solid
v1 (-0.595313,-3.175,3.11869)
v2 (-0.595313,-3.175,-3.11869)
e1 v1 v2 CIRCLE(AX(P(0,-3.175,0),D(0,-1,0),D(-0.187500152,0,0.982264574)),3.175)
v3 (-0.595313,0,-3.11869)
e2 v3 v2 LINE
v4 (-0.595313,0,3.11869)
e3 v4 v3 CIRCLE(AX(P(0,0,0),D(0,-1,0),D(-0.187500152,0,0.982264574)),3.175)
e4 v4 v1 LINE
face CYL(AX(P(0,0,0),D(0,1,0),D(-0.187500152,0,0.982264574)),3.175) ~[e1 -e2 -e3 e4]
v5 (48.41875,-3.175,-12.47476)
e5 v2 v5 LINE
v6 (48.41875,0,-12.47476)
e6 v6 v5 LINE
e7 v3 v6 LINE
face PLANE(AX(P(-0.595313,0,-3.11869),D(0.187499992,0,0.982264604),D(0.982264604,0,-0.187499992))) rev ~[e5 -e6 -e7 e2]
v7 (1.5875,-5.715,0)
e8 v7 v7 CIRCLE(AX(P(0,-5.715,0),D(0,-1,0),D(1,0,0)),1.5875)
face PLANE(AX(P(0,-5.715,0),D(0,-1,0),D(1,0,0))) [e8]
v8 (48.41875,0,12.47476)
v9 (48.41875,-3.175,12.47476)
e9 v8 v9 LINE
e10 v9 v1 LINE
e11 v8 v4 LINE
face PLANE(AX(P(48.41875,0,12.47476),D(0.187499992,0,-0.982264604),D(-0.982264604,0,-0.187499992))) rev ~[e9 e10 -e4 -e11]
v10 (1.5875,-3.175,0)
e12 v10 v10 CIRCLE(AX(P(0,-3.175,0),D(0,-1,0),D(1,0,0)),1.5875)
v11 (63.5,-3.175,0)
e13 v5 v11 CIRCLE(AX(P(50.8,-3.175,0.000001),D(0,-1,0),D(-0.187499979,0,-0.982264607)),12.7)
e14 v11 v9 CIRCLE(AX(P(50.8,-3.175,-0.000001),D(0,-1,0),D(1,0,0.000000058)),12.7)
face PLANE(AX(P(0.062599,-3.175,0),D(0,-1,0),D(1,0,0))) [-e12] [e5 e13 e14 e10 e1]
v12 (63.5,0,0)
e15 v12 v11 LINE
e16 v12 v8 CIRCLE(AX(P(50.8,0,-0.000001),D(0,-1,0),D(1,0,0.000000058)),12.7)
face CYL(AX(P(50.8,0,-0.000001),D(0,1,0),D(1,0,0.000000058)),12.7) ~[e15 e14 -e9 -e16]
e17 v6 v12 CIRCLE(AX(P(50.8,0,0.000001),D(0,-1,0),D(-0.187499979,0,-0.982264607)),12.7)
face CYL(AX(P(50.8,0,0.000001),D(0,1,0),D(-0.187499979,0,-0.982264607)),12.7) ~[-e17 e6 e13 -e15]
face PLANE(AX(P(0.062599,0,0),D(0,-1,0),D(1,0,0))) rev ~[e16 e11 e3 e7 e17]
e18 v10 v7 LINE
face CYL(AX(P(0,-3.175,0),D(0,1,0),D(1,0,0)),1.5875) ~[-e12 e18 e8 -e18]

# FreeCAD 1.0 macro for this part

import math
import FreeCAD as App
import Part
import Sketcher
from FreeCAD import Vector
Q = App.Units.Quantity

doc = App.newDocument("Part")
body = doc.addObject("PartDesign::Body", "Body")

sketch1 = body.newObject("Sketcher::SketchObject", "Sketch")
sketch1.AttachmentSupport = (doc.getObject("XZ_Plane"), [""])
sketch1.MapMode = "FlatFace"
sketch1.addGeometry([
    Part.ArcOfCircle(Part.Circle(Vector(0, 0, 0), Vector(0, 0, 1), 3.2), math.radians(101), math.radians(259)),
    Part.LineSegment(Vector(-0.6, -3.1, 0), Vector(48.4, -12.5, 0)),
    Part.ArcOfCircle(Part.Circle(Vector(50.8, 0, 0), Vector(0, 0, 1), 12.7), math.radians(-101), math.radians(0)),
    Part.ArcOfCircle(Part.Circle(Vector(50.8, 0, 0), Vector(0, 0, 1), 12.7), math.radians(0), math.radians(101)),
    Part.LineSegment(Vector(48.4, 12.5, 0), Vector(-0.6, 3.1, 0)),
], False)
sketch1.addConstraint([
    Sketcher.Constraint("Tangent", 0, 2, 1, 1),
    Sketcher.Constraint("Tangent", 1, 2, 2, 1),
    Sketcher.Constraint("Tangent", 2, 2, 3, 1),
    Sketcher.Constraint("Tangent", 3, 2, 4, 1),
    Sketcher.Constraint("Tangent", 4, 2, 0, 1),
    Sketcher.Constraint("Coincident", 0, 3, -1, 1),
    Sketcher.Constraint("Equal", 2, 3),
    Sketcher.Constraint("PointOnObject", 2, 3, -1),
    Sketcher.Constraint("PointOnObject", 2, 2, -1),
    Sketcher.Constraint("Radius", 2, Q("0.5 in")),
    Sketcher.Constraint("DistanceX", -1, 1, 2, 3, Q("2 in")),
    Sketcher.Constraint("Radius", 0, Q("0.125 in")),
])
pad1 = body.newObject("PartDesign::Pad", "Pad")
pad1.Profile = sketch1
pad1.Length = Q("0.125 in")

sketch2 = body.newObject("Sketcher::SketchObject", "Sketch001")
sketch2.AttachmentSupport = (doc.getObject("XZ_Plane"), [""])
sketch2.MapMode = "FlatFace"
sketch2.AttachmentOffset = App.Placement(Vector(0, 0, 0.125 * 25.4), App.Rotation())
sketch2.addGeometry(Part.Circle(Vector(0, 0, 0), Vector(0, 0, 1), 1.6), False)
sketch2.addConstraint([
    Sketcher.Constraint("Coincident", 0, 3, -1, 1),
    Sketcher.Constraint("Diameter", 0, Q("0.125 in")),
])
pad2 = body.newObject("PartDesign::Pad", "Pad001")
pad2.Profile = sketch2
pad2.Length = Q("0.1 in")

doc.recompute()
